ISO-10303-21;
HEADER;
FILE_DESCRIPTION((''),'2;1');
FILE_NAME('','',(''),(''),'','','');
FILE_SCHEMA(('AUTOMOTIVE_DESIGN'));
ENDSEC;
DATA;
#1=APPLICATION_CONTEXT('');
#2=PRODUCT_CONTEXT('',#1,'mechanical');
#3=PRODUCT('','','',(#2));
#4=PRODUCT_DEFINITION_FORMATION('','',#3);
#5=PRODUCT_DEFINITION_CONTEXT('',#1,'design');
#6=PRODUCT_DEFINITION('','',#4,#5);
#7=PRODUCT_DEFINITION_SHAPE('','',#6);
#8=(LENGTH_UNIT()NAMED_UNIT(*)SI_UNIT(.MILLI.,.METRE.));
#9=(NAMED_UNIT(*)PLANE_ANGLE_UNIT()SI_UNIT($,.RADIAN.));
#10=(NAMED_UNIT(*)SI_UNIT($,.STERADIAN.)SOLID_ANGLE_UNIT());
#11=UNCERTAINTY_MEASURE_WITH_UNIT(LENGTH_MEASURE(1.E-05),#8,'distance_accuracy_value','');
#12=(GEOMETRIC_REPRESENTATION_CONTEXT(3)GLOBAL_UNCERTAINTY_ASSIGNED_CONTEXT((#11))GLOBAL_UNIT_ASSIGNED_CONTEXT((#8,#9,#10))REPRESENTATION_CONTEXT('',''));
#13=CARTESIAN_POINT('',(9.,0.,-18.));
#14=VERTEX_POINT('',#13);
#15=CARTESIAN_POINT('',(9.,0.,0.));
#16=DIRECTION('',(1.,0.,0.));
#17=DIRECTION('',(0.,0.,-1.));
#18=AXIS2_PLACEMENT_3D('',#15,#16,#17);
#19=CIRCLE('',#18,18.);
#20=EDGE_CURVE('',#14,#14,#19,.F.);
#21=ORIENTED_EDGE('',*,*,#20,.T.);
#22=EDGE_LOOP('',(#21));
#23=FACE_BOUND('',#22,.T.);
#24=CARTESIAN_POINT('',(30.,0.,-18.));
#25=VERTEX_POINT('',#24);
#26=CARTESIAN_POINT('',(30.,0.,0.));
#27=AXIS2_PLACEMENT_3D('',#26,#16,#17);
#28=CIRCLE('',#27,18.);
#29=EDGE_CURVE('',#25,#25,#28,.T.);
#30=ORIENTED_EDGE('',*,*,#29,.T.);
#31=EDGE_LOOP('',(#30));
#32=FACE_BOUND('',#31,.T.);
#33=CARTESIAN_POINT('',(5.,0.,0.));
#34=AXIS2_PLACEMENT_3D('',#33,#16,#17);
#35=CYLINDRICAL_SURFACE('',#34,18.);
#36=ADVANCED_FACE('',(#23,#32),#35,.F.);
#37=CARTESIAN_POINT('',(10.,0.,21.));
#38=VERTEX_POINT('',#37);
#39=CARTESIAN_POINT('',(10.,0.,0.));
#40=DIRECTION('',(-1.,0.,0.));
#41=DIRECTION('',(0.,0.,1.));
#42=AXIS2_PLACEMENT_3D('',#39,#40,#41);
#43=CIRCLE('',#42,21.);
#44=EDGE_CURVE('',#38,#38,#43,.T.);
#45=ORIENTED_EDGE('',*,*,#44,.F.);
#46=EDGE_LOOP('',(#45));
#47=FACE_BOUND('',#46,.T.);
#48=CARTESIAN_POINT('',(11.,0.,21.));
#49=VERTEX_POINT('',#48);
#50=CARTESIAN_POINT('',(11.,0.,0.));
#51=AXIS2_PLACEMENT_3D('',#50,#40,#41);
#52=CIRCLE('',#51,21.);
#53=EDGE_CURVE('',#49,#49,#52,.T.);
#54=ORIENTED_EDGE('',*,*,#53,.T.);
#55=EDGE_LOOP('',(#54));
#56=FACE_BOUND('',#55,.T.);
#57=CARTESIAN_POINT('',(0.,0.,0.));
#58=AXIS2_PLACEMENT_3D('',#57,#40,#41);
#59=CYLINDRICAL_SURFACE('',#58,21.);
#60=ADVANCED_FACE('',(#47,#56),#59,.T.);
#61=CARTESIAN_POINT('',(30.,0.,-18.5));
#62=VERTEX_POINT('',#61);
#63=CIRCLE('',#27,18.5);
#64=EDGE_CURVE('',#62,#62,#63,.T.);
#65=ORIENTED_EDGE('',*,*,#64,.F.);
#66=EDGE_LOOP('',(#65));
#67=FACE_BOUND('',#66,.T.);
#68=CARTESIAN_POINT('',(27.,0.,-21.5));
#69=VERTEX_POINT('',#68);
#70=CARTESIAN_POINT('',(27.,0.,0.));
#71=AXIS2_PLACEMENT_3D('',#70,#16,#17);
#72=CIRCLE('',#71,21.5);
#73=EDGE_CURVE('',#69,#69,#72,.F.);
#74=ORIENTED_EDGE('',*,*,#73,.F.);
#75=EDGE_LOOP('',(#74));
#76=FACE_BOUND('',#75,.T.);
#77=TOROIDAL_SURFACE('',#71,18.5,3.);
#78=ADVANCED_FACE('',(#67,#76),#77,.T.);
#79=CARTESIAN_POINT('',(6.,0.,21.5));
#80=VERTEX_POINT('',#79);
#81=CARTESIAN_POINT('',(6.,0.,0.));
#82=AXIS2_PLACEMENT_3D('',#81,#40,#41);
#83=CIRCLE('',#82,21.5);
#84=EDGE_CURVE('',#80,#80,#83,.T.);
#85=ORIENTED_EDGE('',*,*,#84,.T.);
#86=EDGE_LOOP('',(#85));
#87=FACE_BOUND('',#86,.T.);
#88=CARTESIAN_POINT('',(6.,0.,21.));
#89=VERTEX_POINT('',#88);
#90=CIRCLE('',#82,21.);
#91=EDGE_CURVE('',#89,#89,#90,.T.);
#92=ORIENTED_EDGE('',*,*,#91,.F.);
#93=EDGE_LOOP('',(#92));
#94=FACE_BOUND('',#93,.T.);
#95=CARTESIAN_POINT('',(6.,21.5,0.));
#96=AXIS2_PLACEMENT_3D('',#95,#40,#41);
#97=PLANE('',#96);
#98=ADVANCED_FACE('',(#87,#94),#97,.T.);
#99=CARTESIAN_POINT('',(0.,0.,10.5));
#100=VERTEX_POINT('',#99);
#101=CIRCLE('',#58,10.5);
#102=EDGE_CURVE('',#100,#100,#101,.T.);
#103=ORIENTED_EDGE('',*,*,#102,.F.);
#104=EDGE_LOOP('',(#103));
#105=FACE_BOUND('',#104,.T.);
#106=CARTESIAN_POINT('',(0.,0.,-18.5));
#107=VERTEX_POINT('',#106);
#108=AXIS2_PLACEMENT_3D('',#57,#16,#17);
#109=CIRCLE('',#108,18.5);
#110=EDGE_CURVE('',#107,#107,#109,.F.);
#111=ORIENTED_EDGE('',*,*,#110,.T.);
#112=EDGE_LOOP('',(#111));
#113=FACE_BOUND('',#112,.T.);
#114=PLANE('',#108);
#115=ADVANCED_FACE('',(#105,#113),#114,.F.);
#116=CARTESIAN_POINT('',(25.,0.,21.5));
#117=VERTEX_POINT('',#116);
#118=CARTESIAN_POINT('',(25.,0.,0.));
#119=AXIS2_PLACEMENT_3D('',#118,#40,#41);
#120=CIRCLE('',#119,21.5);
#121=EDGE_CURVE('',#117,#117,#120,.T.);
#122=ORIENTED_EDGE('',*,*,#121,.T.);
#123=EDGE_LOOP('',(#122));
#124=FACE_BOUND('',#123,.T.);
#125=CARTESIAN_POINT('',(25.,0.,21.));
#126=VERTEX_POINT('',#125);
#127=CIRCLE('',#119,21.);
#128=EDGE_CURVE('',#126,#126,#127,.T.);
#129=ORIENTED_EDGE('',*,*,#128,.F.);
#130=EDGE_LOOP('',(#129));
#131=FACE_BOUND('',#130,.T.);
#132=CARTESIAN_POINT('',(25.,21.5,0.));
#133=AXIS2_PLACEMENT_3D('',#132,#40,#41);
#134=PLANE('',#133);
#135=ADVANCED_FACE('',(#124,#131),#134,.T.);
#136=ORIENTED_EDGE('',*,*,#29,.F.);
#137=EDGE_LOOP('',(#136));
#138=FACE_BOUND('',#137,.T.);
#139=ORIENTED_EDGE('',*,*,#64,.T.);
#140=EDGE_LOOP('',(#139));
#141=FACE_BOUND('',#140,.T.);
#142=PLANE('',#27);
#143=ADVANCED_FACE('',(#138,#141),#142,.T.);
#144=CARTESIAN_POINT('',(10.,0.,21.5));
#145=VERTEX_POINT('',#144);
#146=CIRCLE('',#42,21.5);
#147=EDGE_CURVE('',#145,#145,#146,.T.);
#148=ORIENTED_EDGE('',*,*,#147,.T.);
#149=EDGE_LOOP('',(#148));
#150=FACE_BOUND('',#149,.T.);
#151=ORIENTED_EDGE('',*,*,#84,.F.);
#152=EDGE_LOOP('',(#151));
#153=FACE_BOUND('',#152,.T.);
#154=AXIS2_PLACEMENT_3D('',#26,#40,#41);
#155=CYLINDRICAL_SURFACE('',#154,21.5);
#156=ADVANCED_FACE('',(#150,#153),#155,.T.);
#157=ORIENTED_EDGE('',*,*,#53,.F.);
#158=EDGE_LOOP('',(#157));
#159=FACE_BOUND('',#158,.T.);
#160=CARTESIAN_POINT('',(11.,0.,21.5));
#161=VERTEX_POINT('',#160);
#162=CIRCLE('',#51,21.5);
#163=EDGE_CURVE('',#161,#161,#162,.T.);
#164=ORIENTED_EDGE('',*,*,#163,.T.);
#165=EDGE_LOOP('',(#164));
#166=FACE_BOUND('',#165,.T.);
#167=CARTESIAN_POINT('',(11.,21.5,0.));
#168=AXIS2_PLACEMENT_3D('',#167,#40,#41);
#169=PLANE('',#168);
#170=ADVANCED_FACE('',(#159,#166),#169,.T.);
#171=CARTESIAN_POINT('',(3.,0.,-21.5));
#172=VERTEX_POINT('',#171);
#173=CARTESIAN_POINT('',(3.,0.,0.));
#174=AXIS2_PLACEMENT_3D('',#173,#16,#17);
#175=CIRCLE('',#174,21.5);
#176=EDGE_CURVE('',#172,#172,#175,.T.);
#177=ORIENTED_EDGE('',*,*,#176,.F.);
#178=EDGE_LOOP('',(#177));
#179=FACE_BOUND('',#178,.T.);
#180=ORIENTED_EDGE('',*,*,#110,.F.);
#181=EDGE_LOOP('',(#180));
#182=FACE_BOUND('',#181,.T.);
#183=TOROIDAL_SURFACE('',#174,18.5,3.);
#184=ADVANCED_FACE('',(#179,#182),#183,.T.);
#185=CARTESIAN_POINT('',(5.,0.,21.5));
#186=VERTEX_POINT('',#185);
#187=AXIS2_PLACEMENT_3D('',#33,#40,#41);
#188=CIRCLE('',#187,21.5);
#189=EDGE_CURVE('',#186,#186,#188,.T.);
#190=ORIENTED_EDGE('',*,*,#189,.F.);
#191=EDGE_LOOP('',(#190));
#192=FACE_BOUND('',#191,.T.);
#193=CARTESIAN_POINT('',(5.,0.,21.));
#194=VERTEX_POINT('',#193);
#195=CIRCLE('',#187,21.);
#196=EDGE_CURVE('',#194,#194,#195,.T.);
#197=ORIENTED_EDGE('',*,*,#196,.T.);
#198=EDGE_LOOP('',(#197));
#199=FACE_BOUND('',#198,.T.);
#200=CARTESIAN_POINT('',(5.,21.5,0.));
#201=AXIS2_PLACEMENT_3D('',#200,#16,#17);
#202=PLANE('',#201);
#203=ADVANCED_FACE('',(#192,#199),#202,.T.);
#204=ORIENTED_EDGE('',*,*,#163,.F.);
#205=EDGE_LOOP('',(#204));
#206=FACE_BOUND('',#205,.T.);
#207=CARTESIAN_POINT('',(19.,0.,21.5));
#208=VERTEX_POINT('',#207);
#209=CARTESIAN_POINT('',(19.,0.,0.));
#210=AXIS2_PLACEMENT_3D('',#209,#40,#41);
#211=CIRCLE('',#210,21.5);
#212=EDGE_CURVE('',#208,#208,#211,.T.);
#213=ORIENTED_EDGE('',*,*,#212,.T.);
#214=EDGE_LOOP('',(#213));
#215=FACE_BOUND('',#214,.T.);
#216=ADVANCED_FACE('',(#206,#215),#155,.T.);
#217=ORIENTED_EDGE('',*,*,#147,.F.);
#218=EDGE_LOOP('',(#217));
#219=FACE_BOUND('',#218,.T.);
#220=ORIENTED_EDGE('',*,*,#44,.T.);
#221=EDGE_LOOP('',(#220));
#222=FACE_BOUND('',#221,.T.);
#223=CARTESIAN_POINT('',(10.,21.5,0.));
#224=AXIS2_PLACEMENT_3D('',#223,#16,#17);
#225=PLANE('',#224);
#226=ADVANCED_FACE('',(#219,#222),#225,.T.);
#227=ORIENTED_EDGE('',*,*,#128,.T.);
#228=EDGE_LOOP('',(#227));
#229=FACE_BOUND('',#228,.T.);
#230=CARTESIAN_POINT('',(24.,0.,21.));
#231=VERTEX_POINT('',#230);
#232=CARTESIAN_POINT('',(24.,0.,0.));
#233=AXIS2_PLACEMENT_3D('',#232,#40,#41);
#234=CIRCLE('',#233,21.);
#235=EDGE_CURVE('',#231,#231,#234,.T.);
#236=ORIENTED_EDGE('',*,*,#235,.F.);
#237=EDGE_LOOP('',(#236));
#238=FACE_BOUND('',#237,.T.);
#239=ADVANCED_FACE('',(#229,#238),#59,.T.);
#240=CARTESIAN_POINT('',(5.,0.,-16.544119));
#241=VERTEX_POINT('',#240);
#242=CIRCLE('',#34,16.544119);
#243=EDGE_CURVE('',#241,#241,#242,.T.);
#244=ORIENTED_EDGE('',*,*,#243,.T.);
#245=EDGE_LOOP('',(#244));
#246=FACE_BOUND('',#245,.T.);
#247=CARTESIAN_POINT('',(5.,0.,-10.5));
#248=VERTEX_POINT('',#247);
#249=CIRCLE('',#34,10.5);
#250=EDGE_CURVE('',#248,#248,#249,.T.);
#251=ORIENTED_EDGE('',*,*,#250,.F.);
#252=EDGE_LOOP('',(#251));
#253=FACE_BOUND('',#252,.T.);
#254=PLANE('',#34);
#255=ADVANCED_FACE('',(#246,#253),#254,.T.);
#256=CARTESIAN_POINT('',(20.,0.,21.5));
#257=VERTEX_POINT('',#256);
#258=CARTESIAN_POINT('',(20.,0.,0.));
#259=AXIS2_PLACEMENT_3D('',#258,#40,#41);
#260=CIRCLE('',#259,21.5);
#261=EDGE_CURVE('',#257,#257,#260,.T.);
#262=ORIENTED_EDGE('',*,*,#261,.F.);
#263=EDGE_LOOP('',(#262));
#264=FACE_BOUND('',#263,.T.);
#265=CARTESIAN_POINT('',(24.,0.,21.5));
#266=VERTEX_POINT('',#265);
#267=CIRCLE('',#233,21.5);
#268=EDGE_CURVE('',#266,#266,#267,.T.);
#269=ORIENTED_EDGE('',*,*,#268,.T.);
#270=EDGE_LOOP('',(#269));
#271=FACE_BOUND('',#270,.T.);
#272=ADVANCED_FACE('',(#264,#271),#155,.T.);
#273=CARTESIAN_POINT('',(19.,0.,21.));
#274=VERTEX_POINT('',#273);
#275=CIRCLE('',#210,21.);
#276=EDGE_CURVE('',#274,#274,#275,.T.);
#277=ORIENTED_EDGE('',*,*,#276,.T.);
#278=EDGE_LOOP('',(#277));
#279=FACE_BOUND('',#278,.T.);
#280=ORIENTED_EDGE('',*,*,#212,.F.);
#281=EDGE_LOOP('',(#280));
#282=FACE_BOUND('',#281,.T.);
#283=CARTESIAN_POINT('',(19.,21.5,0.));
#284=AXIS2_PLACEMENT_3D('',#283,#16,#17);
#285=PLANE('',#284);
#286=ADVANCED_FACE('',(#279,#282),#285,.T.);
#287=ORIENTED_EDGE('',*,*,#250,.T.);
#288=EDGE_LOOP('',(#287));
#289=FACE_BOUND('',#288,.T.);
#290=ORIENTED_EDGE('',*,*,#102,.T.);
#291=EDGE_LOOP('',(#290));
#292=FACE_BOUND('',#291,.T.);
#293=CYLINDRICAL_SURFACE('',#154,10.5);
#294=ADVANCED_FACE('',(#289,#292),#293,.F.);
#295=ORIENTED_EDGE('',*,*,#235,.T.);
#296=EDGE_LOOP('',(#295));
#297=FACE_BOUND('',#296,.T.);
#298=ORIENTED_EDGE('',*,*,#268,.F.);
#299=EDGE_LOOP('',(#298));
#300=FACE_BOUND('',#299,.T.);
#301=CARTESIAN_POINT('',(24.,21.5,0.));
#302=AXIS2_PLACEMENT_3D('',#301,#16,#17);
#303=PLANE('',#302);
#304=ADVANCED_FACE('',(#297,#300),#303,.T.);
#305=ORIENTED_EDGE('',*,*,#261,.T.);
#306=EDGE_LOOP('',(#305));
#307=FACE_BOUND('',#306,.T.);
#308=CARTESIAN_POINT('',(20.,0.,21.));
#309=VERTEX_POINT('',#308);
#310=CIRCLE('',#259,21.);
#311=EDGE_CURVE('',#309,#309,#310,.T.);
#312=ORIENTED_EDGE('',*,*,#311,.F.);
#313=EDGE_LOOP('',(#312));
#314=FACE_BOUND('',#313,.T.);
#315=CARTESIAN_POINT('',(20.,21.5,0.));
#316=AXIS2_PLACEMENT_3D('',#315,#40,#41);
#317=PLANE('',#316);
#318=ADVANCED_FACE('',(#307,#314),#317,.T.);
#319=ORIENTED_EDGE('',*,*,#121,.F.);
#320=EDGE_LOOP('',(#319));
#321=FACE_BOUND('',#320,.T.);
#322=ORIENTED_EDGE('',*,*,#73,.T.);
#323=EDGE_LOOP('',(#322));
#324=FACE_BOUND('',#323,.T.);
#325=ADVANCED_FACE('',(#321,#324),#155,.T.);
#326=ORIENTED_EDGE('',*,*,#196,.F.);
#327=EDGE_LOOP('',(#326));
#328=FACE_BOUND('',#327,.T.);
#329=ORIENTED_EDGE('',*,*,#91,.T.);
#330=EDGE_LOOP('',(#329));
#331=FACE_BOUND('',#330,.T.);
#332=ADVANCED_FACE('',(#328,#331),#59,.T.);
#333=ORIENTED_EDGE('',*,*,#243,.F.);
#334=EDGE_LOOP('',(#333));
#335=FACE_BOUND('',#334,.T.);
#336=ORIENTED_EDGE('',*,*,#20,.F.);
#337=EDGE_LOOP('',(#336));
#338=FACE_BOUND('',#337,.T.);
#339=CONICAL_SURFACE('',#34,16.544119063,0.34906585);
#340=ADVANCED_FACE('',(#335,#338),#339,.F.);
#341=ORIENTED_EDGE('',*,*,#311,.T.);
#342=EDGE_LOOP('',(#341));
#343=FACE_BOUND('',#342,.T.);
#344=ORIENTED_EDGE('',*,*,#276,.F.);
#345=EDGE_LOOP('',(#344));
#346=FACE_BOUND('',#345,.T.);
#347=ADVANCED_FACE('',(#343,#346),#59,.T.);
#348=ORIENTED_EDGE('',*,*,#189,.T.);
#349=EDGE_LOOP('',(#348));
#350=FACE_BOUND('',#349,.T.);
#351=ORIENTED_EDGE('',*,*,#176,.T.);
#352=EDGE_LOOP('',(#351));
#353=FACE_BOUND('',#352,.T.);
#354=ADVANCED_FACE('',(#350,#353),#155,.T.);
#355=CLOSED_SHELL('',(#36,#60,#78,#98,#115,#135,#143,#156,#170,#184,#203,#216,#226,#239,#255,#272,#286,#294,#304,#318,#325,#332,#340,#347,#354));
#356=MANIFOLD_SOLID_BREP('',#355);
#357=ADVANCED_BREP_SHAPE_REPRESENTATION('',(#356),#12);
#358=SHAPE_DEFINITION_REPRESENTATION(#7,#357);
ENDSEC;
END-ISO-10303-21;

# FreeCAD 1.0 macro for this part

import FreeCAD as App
import Part
import Sketcher

V = App.Vector
Q = App.Units.Quantity


def edges_at(feature, points):
    """Names of the edges that pass closest to the given points."""
    edges = feature.Shape.Edges
    near = lambda p: min(range(len(edges)), key=lambda i: edges[i].distToShape(Part.Vertex(*p))[0])
    return sorted({f"Edge{near(p) + 1}" for p in points})

doc = App.newDocument("Part")
body = doc.addObject("PartDesign::Body", "Body")

# Sketch on YZ plane
sketch1 = body.newObject("Sketcher::SketchObject", "Sketch")
sketch1.AttachmentSupport = (doc.getObject("YZ_Plane"), [""])
sketch1.MapMode = "FlatFace"
sketch1.addGeometry(Part.Circle(V(0, 0, 0), V(0, 0, 1), 22), False)
sketch1.addConstraint([
    Sketcher.Constraint("Coincident", 0, 3, -1, 1),
    Sketcher.Constraint("Diameter", 0, Q("43 mm")),
])
pad1 = body.newObject("PartDesign::Pad", "Pad")
pad1.Profile = sketch1
pad1.Length = 30

# Sketch on YZ plane
sketch2 = body.newObject("Sketcher::SketchObject", "Sketch001")
sketch2.AttachmentSupport = (doc.getObject("YZ_Plane"), [""])
sketch2.MapMode = "FlatFace"
sketch2.AttachmentOffset = App.Placement(V(0, 0, 30), App.Rotation())
sketch2.addGeometry(Part.Circle(V(0, 0, 0), V(0, 0, 1), 18), False)
sketch2.addConstraint([
    Sketcher.Constraint("Coincident", 0, 3, -1, 1),
    Sketcher.Constraint("Diameter", 0, Q("36 mm")),
])
pocket1 = body.newObject("PartDesign::Pocket", "Pocket")
pocket1.Profile = sketch2
pocket1.Length = 25

# Sketch on YZ plane
sketch3 = body.newObject("Sketcher::SketchObject", "Sketch002")
sketch3.AttachmentSupport = (doc.getObject("YZ_Plane"), [""])
sketch3.MapMode = "FlatFace"
sketch3.addGeometry(Part.Circle(V(0, 0, 0), V(0, 0, 1), 10), False)
sketch3.addConstraint([
    Sketcher.Constraint("Coincident", 0, 3, -1, 1),
    Sketcher.Constraint("Diameter", 0, Q("21 mm")),
])
pocket2 = body.newObject("PartDesign::Pocket", "Pocket001")
pocket2.Profile = sketch3
pocket2.Type = "ThroughAll"
pocket2.Reversed = True
doc.recompute()

fillet = body.newObject("PartDesign::Fillet", "Fillet")
fillet.Base = (pocket2, edges_at(pocket2, [(0, 0, 21.5), (30, 0, 21.5)]))
fillet.Radius = 3

# Sketch on XY plane
sketch4 = body.newObject("Sketcher::SketchObject", "Sketch003")
sketch4.AttachmentSupport = (doc.getObject("XY_Plane"), [""])
sketch4.MapMode = "FlatFace"
sketch4.addGeometry([
    Part.LineSegment(V(5, 21.5, 0), V(5, 21, 0)),  # 0
    Part.LineSegment(V(5, 21, 0), V(6, 21, 0)),  # 1
    Part.LineSegment(V(6, 21, 0), V(6, 21.5, 0)),  # 2
    Part.LineSegment(V(6, 21.5, 0), V(5, 21.5, 0)),  # 3
    Part.LineSegment(V(24, 21.5, 0), V(24, 21, 0)),  # 4
    Part.LineSegment(V(24, 21, 0), V(25, 21, 0)),  # 5
    Part.LineSegment(V(25, 21, 0), V(25, 21.5, 0)),  # 6
    Part.LineSegment(V(25, 21.5, 0), V(24, 21.5, 0)),  # 7
    Part.LineSegment(V(10, 21.5, 0), V(10, 21, 0)),  # 8
    Part.LineSegment(V(10, 21, 0), V(11, 21, 0)),  # 9
    Part.LineSegment(V(11, 21, 0), V(11, 21.5, 0)),  # 10
    Part.LineSegment(V(11, 21.5, 0), V(10, 21.5, 0)),  # 11
    Part.LineSegment(V(19, 21.5, 0), V(19, 21, 0)),  # 12
    Part.LineSegment(V(19, 21, 0), V(20, 21, 0)),  # 13
    Part.LineSegment(V(20, 21, 0), V(20, 21.5, 0)),  # 14
    Part.LineSegment(V(20, 21.5, 0), V(19, 21.5, 0)),  # 15
], False)
sketch4.addConstraint([
    Sketcher.Constraint("Coincident", 0, 2, 1, 1),
    Sketcher.Constraint("Coincident", 1, 2, 2, 1),
    Sketcher.Constraint("Coincident", 2, 2, 3, 1),
    Sketcher.Constraint("Coincident", 3, 2, 0, 1),
    Sketcher.Constraint("Coincident", 4, 2, 5, 1),
    Sketcher.Constraint("Coincident", 5, 2, 6, 1),
    Sketcher.Constraint("Coincident", 6, 2, 7, 1),
    Sketcher.Constraint("Coincident", 7, 2, 4, 1),
    Sketcher.Constraint("Coincident", 8, 2, 9, 1),
    Sketcher.Constraint("Coincident", 9, 2, 10, 1),
    Sketcher.Constraint("Coincident", 10, 2, 11, 1),
    Sketcher.Constraint("Coincident", 11, 2, 8, 1),
    Sketcher.Constraint("Coincident", 12, 2, 13, 1),
    Sketcher.Constraint("Coincident", 13, 2, 14, 1),
    Sketcher.Constraint("Coincident", 14, 2, 15, 1),
    Sketcher.Constraint("Coincident", 15, 2, 12, 1),
    Sketcher.Constraint("Vertical", 0),
    Sketcher.Constraint("Horizontal", 1),
    Sketcher.Constraint("Vertical", 2),
    Sketcher.Constraint("Horizontal", 3),
    Sketcher.Constraint("Vertical", 4),
    Sketcher.Constraint("Horizontal", 5),
    Sketcher.Constraint("Vertical", 6),
    Sketcher.Constraint("Horizontal", 7),
    Sketcher.Constraint("Vertical", 8),
    Sketcher.Constraint("Horizontal", 9),
    Sketcher.Constraint("Vertical", 10),
    Sketcher.Constraint("Horizontal", 11),
    Sketcher.Constraint("Vertical", 12),
    Sketcher.Constraint("Horizontal", 13),
    Sketcher.Constraint("Vertical", 14),
    Sketcher.Constraint("Horizontal", 15),
    Sketcher.Constraint("Horizontal", 1, 2, 4, 2),
    Sketcher.Constraint("Horizontal", 3, 2, 6, 2),
    Sketcher.Constraint("Horizontal", 5, 2, 8, 2),
    Sketcher.Constraint("Horizontal", 7, 2, 10, 2),
    Sketcher.Constraint("Horizontal", 9, 2, 12, 2),
    Sketcher.Constraint("Horizontal", 11, 2, 14, 2),
    Sketcher.Constraint("Equal", 3, 5),
    Sketcher.Constraint("Equal", 7, 9),
    Sketcher.Constraint("Equal", 11, 13),
    Sketcher.Constraint("DistanceX", 1, 1, 1, 2, Q("1 mm")),
    Sketcher.Constraint("DistanceY", 0, 2, 0, 1, Q("0.5 mm")),
    Sketcher.Constraint("DistanceX", -1, 1, 0, 2, Q("5 mm")),
    Sketcher.Constraint("DistanceY", -1, 1, 0, 2, Q("21 mm")),
    Sketcher.Constraint("DistanceX", -1, 1, 4, 2, Q("24 mm")),
    Sketcher.Constraint("DistanceX", -1, 1, 8, 2, Q("10 mm")),
    Sketcher.Constraint("DistanceX", -1, 1, 12, 2, Q("19 mm")),
])
groove = body.newObject("PartDesign::Groove", "Groove")
groove.Profile = sketch4
groove.ReferenceAxis = (sketch4, ["H_Axis"])
groove.Angle = 360
doc.recompute()

chamfer = body.newObject("PartDesign::Chamfer", "Chamfer")
chamfer.Base = (groove, edges_at(groove, [(5, 0, 18)]))
chamfer.ChamferType = "Two distances"
chamfer.Size = 4
chamfer.Size2 = 1.455881
chamfer.FlipDirection = True

doc.recompute()
